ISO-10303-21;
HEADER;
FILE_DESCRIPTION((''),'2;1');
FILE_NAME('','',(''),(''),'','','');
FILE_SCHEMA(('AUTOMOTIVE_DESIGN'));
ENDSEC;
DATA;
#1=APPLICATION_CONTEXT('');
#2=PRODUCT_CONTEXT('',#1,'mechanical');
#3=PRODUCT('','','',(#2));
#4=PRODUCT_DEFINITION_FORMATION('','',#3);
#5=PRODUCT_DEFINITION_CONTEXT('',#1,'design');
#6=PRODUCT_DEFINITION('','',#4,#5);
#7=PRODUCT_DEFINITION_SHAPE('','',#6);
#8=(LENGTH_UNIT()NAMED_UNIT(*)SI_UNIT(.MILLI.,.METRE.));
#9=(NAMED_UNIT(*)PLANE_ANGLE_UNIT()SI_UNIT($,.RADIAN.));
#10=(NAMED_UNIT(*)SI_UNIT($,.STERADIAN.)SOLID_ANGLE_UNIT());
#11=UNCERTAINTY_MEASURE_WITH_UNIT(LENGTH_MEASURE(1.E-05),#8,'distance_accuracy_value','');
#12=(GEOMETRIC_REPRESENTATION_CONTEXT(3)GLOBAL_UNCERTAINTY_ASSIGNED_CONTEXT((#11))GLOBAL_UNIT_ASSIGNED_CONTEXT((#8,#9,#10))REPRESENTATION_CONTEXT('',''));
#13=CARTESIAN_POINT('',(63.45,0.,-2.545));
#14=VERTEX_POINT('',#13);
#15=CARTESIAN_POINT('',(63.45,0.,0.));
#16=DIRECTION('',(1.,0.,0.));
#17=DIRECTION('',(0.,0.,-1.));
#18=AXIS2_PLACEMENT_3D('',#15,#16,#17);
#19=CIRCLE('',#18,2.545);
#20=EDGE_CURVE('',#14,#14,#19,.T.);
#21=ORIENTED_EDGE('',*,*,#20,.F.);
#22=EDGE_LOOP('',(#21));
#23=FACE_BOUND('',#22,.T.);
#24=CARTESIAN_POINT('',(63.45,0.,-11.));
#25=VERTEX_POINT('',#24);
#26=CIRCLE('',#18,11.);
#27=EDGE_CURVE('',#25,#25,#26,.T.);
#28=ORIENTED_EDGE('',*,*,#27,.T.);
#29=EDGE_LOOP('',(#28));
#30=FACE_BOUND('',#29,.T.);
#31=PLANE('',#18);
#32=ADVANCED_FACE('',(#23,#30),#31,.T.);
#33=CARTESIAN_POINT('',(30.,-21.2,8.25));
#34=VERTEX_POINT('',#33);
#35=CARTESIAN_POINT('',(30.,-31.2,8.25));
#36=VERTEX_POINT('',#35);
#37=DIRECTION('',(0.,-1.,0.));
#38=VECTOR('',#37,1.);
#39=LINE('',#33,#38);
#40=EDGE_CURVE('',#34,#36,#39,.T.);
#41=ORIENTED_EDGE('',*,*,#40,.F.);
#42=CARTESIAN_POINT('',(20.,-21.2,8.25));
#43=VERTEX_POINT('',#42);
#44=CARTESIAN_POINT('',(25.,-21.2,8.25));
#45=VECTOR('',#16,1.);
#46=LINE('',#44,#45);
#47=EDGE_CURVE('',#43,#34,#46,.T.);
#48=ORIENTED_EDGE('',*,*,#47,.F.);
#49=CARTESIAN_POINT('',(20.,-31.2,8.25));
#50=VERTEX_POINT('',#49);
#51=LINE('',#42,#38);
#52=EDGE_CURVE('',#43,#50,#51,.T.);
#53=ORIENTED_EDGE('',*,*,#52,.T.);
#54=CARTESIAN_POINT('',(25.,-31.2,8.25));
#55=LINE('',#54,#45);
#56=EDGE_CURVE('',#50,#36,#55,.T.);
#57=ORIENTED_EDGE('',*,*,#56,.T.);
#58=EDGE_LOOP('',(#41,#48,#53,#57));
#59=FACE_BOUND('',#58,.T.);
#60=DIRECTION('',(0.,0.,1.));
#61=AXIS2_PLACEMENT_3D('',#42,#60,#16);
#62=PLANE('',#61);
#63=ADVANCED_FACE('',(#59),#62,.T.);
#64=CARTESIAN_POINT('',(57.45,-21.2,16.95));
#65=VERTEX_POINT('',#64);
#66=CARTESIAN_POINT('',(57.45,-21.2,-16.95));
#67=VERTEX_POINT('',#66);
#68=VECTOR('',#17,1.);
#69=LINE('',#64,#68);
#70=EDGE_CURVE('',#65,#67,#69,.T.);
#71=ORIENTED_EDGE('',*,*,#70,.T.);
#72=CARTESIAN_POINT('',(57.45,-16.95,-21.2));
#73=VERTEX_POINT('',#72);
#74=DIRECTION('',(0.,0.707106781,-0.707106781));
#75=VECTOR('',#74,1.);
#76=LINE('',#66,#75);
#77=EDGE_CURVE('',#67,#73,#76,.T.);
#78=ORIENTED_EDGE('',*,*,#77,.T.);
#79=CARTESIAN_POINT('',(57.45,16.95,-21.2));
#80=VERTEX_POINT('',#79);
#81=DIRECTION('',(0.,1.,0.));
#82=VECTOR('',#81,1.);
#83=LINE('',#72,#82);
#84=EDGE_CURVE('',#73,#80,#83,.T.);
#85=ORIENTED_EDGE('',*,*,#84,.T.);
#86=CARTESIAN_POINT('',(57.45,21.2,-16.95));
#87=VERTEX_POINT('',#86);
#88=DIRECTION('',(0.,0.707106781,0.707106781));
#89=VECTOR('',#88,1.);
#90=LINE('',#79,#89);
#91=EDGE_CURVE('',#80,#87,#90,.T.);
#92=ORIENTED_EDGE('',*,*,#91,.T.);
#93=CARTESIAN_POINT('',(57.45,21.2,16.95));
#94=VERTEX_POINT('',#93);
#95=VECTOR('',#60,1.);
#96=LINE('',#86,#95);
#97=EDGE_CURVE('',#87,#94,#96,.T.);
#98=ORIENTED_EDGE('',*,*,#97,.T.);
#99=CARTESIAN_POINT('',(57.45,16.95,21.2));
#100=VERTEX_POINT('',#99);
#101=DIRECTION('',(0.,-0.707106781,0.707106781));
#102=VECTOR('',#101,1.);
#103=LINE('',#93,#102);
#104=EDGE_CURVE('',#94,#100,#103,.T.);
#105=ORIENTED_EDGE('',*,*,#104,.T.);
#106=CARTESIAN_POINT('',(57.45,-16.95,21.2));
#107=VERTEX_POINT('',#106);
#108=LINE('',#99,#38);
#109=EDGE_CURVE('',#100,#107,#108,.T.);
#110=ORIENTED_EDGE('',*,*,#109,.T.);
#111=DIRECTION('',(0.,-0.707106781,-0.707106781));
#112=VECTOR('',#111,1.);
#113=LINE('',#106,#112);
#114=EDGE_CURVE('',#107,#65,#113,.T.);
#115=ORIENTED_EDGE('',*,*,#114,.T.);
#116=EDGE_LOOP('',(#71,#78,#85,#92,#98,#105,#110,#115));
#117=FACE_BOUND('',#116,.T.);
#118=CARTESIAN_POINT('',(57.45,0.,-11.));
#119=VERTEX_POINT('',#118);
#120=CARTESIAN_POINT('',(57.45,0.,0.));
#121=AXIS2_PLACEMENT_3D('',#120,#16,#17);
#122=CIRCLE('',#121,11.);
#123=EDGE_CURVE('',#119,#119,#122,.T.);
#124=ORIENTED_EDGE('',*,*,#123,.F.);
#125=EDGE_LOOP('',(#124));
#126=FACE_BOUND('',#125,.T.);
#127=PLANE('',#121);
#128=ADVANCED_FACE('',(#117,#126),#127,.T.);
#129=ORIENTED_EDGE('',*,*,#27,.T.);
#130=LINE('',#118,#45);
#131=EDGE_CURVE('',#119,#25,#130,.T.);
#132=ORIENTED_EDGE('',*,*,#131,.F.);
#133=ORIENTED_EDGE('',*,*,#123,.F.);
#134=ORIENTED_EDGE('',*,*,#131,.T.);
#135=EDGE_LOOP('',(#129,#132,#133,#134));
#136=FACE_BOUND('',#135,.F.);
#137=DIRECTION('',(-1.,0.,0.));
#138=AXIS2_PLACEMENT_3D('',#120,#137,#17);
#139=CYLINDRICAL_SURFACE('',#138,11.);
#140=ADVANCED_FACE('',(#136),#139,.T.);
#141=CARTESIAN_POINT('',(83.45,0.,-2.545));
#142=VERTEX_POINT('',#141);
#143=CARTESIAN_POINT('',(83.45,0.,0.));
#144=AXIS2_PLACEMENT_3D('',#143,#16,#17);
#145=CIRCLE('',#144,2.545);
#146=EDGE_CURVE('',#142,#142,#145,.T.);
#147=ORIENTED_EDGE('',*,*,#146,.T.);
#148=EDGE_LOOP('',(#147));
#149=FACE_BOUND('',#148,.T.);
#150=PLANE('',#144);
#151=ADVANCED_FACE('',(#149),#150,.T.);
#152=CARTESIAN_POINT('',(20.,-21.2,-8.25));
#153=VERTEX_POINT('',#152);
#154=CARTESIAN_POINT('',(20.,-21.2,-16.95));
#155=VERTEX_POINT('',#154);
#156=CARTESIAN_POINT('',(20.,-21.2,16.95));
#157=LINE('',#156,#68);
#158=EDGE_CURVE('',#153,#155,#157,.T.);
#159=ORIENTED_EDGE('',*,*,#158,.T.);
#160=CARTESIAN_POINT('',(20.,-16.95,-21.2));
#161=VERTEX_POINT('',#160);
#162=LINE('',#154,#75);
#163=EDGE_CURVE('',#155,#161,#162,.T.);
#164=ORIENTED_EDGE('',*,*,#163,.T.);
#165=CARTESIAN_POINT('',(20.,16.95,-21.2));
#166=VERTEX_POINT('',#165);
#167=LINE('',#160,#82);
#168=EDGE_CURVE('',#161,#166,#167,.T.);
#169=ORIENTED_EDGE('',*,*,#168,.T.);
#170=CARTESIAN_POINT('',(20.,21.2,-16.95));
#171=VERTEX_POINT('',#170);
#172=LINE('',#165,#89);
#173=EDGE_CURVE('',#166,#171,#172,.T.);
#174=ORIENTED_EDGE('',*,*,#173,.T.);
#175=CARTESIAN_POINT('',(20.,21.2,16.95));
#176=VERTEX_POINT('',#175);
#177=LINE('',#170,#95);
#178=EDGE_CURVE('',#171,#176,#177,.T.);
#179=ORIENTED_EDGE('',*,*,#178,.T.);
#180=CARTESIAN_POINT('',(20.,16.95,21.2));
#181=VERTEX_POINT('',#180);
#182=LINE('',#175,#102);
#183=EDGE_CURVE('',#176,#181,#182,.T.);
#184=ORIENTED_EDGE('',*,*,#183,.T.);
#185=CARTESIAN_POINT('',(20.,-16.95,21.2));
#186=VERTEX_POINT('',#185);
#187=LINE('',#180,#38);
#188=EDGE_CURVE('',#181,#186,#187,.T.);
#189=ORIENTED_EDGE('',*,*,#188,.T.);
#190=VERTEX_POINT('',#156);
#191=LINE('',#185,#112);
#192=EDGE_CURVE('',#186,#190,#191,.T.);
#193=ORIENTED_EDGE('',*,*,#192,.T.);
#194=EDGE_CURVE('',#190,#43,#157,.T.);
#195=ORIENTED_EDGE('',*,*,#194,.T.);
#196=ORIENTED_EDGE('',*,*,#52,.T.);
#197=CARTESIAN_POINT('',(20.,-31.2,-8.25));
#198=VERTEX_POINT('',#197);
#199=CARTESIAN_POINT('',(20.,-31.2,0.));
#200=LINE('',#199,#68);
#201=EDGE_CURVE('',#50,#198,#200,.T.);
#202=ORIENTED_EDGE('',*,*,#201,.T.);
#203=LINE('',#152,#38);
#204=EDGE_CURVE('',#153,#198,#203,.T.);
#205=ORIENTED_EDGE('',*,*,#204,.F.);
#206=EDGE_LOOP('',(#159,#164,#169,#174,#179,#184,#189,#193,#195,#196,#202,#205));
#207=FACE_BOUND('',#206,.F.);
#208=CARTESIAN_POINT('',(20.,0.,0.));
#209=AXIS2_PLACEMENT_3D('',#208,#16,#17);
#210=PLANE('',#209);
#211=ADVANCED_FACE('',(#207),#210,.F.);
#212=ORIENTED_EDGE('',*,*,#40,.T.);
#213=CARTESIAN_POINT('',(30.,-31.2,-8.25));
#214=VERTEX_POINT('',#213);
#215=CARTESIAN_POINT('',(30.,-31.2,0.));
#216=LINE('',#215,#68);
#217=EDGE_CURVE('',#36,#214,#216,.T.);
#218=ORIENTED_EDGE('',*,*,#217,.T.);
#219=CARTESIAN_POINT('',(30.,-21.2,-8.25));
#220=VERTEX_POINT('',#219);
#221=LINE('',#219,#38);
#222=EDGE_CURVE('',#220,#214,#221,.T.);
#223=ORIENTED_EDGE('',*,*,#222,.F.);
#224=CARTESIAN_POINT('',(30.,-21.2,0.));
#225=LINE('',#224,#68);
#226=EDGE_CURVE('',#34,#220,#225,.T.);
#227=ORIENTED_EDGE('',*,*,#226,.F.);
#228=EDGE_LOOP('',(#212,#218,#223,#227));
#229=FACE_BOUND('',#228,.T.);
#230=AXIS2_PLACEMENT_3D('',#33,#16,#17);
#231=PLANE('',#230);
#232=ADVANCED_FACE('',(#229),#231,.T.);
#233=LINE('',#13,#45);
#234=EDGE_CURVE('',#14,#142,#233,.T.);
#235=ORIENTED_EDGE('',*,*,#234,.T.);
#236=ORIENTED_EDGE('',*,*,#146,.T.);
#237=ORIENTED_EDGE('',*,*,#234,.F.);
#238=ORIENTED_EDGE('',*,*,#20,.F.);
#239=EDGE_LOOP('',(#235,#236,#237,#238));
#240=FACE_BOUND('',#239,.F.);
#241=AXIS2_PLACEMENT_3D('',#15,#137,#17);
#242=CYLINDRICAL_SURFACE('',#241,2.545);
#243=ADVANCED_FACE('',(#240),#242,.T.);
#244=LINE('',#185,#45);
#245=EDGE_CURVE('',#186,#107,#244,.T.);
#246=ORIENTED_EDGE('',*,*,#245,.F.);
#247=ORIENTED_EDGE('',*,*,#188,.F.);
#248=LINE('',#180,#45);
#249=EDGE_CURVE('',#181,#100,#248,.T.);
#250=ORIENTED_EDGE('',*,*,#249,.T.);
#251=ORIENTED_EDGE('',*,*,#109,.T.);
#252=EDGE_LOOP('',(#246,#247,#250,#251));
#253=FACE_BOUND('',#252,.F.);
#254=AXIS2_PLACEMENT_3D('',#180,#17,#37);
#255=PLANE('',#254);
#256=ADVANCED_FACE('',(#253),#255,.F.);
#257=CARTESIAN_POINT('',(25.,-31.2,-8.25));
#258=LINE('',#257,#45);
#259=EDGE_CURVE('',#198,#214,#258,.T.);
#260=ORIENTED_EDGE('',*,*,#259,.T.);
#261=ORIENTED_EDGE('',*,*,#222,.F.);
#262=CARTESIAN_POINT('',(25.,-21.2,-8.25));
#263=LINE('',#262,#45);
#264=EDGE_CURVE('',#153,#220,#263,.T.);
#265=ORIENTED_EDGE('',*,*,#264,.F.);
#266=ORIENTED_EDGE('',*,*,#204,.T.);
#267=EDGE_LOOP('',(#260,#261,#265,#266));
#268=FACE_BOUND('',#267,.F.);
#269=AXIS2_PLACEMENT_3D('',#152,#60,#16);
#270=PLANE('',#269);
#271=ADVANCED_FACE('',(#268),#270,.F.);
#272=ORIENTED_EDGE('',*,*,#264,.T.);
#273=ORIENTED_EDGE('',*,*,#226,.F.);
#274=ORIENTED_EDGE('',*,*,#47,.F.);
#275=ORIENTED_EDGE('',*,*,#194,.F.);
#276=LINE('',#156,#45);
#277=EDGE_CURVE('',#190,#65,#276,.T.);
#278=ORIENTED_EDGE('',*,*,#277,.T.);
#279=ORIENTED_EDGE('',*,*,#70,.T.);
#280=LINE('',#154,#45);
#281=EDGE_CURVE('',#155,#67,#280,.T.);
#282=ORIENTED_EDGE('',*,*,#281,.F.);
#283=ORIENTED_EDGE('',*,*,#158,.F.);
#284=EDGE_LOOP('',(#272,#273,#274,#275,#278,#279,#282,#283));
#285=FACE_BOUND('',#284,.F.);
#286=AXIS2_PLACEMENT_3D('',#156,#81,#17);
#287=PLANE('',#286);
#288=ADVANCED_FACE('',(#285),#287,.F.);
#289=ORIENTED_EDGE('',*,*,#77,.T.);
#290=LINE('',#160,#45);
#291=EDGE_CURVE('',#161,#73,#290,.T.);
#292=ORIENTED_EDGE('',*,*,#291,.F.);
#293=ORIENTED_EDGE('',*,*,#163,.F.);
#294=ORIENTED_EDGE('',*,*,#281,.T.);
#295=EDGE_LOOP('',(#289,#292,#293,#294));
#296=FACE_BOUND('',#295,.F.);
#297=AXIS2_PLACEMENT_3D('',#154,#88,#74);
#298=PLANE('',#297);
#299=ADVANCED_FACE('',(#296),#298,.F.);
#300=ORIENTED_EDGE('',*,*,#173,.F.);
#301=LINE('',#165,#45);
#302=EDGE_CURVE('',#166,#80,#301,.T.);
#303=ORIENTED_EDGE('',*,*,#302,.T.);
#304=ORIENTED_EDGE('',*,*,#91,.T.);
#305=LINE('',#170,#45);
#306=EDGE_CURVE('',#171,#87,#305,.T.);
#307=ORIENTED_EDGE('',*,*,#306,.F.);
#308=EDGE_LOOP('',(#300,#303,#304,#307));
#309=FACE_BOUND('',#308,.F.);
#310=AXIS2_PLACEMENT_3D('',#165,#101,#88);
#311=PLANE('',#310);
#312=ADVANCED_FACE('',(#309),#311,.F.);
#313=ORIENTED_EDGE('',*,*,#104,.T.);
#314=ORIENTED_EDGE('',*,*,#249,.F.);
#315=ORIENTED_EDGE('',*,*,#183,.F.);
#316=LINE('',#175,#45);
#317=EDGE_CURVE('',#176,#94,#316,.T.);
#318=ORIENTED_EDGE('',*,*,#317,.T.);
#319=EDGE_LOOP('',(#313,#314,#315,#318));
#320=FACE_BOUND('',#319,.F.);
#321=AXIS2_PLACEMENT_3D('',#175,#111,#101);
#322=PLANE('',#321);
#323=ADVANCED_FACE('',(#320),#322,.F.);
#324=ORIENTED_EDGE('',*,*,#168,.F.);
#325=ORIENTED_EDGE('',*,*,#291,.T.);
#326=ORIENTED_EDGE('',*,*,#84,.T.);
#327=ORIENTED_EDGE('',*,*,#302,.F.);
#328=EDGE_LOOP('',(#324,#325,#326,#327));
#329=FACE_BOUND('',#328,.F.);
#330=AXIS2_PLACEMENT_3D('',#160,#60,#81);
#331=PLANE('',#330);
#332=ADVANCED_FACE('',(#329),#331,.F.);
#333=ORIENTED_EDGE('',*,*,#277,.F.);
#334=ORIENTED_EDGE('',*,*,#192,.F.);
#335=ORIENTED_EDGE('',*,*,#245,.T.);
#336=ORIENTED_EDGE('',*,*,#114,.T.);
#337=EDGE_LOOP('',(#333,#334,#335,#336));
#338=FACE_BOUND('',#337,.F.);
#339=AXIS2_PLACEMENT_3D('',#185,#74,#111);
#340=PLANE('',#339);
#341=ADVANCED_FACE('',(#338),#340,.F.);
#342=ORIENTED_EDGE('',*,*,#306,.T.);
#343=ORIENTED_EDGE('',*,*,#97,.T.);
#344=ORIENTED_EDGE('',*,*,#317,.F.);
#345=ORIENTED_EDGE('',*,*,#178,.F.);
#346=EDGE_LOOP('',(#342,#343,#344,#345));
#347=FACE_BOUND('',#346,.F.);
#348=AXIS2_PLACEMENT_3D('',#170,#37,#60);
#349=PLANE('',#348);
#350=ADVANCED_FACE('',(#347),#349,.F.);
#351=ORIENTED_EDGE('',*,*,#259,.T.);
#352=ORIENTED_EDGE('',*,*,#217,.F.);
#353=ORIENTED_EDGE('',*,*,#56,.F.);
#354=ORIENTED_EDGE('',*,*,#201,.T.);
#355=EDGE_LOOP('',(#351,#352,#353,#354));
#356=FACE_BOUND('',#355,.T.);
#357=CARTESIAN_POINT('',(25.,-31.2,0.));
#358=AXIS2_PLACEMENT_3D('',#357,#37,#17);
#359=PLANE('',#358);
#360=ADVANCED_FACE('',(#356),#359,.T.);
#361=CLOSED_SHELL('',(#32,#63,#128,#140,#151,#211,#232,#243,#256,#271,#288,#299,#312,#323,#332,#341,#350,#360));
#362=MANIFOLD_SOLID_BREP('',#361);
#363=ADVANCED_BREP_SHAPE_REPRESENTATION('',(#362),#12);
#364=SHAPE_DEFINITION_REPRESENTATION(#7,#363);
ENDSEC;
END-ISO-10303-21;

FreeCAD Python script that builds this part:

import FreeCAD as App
import Part
import Sketcher
from FreeCAD import Vector
Q = App.Units.Quantity

doc = App.newDocument("Part")
params = doc.addObject("Spreadsheet::Sheet", "Params")
for row, (alias, value) in enumerate([
    ("sketch1_width", "33.9 mm"),
    ("pad1_length", "37.45 mm"),
    ("sketch2_height", "10 mm"),
    ("sketch2_width", "16.5 mm"),
    ("pad2_length", "10 mm"),
    ("sketch3_diameter", "22 mm"),
    ("pad3_length", "6 mm"),
    ("sketch4_diameter", "5.09 mm"),
    ("pad4_length", "20 mm"),
], start=1):
    params.set(f"A{row}", alias)
    params.set(f"B{row}", "=" + value)
    params.setAlias(f"B{row}", alias)

body = doc.addObject("PartDesign::Body", "Body")

# Sketch on XY plane
sketch1 = body.newObject("Sketcher::SketchObject", "Sketch")
sketch1.AttachmentSupport = (doc.getObject("XY_Plane"), [""])
sketch1.MapMode = "FlatFace"
sketch1.addGeometry([
    Part.LineSegment(Vector(-21, 17, 0), Vector(-21, -17, 0)),  # 0
    Part.LineSegment(Vector(-21, -17, 0), Vector(-17, -21, 0)),  # 1
    Part.LineSegment(Vector(-17, -21, 0), Vector(17, -21, 0)),  # 2
    Part.LineSegment(Vector(17, -21, 0), Vector(21, -17, 0)),  # 3
    Part.LineSegment(Vector(21, -17, 0), Vector(21, 17, 0)),  # 4
    Part.LineSegment(Vector(21, 17, 0), Vector(17, 21, 0)),  # 5
    Part.LineSegment(Vector(17, 21, 0), Vector(-17, 21, 0)),  # 6
    Part.LineSegment(Vector(-17, 21, 0), Vector(-21, 17, 0)),  # 7
], False)
sketch1.addConstraint([
    Sketcher.Constraint("Coincident", 0, 2, 1, 1),
    Sketcher.Constraint("Coincident", 1, 2, 2, 1),
    Sketcher.Constraint("Coincident", 2, 2, 3, 1),
    Sketcher.Constraint("Coincident", 3, 2, 4, 1),
    Sketcher.Constraint("Coincident", 4, 2, 5, 1),
    Sketcher.Constraint("Coincident", 5, 2, 6, 1),
    Sketcher.Constraint("Coincident", 6, 2, 7, 1),
    Sketcher.Constraint("Coincident", 7, 2, 0, 1),
    Sketcher.Constraint("Vertical", 0),
    Sketcher.Constraint("Horizontal", 2),
    Sketcher.Constraint("Vertical", 4),
    Sketcher.Constraint("Horizontal", 6),
    Sketcher.Constraint("Symmetric", 0, 2, 4, 2, -1, 1),
    Sketcher.Constraint("Symmetric", 1, 2, 5, 2, -1, 1),
    Sketcher.Constraint("Perpendicular", 1, 3),
    Sketcher.Constraint("Perpendicular", 5, 7),
    Sketcher.Constraint("Horizontal", 0, 2, 3, 2),
    Sketcher.Constraint("Horizontal", 4, 2, 7, 2),
    Sketcher.Constraint("Vertical", 2, 2, 5, 2),
    Sketcher.Constraint("Equal", 6, 0),
    Sketcher.Constraint("DistanceX", 2, 1, 2, 2, Q("33.9 mm")),
    Sketcher.Constraint("DistanceX", 0, 2, -1, 1, Q("21.2 mm")),
])
sketch1.setExpression("Constraints[20]", "Params.sketch1_width")
pad1 = body.newObject("PartDesign::Pad", "Pad")
pad1.Profile = sketch1
pad1.setExpression("Length", "Params.pad1_length")

# Sketch on XZ plane
sketch2 = body.newObject("Sketcher::SketchObject", "Sketch001")
sketch2.AttachmentSupport = (doc.getObject("XZ_Plane"), [""])
sketch2.MapMode = "FlatFace"
sketch2.AttachmentOffset = App.Placement(Vector(0, 0, 21.2), App.Rotation())
sketch2.addGeometry([
    Part.LineSegment(Vector(-8, 10, 0), Vector(-8, 0, 0)),
    Part.LineSegment(Vector(-8, 0, 0), Vector(8, 0, 0)),
    Part.LineSegment(Vector(8, 0, 0), Vector(8, 10, 0)),
    Part.LineSegment(Vector(8, 10, 0), Vector(-8, 10, 0)),
], False)
sketch2.addConstraint([
    Sketcher.Constraint("Coincident", 0, 2, 1, 1),
    Sketcher.Constraint("Coincident", 1, 2, 2, 1),
    Sketcher.Constraint("Coincident", 2, 2, 3, 1),
    Sketcher.Constraint("Coincident", 3, 2, 0, 1),
    Sketcher.Constraint("Vertical", 0),
    Sketcher.Constraint("Horizontal", 1),
    Sketcher.Constraint("Vertical", 2),
    Sketcher.Constraint("Horizontal", 3),
    Sketcher.Constraint("Symmetric", 0, 2, 1, 2, -1, 1),
    Sketcher.Constraint("DistanceY", 0, 2, 0, 1, Q("10 mm")),
    Sketcher.Constraint("DistanceX", 1, 1, 1, 2, Q("16.5 mm")),
])
sketch2.setExpression("Constraints[9]", "Params.sketch2_height")
sketch2.setExpression("Constraints[10]", "Params.sketch2_width")
pad2 = body.newObject("PartDesign::Pad", "Pad001")
pad2.Profile = sketch2
pad2.setExpression("Length", "Params.pad2_length")

# Sketch on XY plane
sketch3 = body.newObject("Sketcher::SketchObject", "Sketch002")
sketch3.AttachmentSupport = (doc.getObject("XY_Plane"), [""])
sketch3.MapMode = "FlatFace"
sketch3.AttachmentOffset = App.Placement(Vector(0, 0, 37.45), App.Rotation())
sketch3.addGeometry(Part.Circle(Vector(0, 0, 0), Vector(0, 0, 1), 11), False)
sketch3.addConstraint([
    Sketcher.Constraint("Coincident", 0, 3, -1, 1),
    Sketcher.Constraint("Diameter", 0, Q("22 mm")),
])
sketch3.setExpression("Constraints[1]", "Params.sketch3_diameter")
pad3 = body.newObject("PartDesign::Pad", "Pad002")
pad3.Profile = sketch3
pad3.setExpression("Length", "Params.pad3_length")

# Sketch on XY plane
sketch4 = body.newObject("Sketcher::SketchObject", "Sketch003")
sketch4.AttachmentSupport = (doc.getObject("XY_Plane"), [""])
sketch4.MapMode = "FlatFace"
sketch4.AttachmentOffset = App.Placement(Vector(0, 0, 43.45), App.Rotation())
sketch4.addGeometry(Part.Circle(Vector(0, 0, 0), Vector(0, 0, 1), 2.5), False)
sketch4.addConstraint([
    Sketcher.Constraint("Coincident", 0, 3, -1, 1),
    Sketcher.Constraint("Diameter", 0, Q("5.09 mm")),
])
sketch4.setExpression("Constraints[1]", "Params.sketch4_diameter")
pad4 = body.newObject("PartDesign::Pad", "Pad003")
pad4.Profile = sketch4
pad4.setExpression("Length", "Params.pad4_length")
body2 = doc.addObject("PartDesign::Body", "Body001")
doc.recompute()

body.Placement = App.Placement(Vector(20, 0, 0), App.Rotation(Vector(0, 1, 0), 90))
boolean = body2.newObject("PartDesign::Boolean", "Boolean")
boolean.Type = "Fuse"
boolean.addObjects([body])

doc.recompute()
